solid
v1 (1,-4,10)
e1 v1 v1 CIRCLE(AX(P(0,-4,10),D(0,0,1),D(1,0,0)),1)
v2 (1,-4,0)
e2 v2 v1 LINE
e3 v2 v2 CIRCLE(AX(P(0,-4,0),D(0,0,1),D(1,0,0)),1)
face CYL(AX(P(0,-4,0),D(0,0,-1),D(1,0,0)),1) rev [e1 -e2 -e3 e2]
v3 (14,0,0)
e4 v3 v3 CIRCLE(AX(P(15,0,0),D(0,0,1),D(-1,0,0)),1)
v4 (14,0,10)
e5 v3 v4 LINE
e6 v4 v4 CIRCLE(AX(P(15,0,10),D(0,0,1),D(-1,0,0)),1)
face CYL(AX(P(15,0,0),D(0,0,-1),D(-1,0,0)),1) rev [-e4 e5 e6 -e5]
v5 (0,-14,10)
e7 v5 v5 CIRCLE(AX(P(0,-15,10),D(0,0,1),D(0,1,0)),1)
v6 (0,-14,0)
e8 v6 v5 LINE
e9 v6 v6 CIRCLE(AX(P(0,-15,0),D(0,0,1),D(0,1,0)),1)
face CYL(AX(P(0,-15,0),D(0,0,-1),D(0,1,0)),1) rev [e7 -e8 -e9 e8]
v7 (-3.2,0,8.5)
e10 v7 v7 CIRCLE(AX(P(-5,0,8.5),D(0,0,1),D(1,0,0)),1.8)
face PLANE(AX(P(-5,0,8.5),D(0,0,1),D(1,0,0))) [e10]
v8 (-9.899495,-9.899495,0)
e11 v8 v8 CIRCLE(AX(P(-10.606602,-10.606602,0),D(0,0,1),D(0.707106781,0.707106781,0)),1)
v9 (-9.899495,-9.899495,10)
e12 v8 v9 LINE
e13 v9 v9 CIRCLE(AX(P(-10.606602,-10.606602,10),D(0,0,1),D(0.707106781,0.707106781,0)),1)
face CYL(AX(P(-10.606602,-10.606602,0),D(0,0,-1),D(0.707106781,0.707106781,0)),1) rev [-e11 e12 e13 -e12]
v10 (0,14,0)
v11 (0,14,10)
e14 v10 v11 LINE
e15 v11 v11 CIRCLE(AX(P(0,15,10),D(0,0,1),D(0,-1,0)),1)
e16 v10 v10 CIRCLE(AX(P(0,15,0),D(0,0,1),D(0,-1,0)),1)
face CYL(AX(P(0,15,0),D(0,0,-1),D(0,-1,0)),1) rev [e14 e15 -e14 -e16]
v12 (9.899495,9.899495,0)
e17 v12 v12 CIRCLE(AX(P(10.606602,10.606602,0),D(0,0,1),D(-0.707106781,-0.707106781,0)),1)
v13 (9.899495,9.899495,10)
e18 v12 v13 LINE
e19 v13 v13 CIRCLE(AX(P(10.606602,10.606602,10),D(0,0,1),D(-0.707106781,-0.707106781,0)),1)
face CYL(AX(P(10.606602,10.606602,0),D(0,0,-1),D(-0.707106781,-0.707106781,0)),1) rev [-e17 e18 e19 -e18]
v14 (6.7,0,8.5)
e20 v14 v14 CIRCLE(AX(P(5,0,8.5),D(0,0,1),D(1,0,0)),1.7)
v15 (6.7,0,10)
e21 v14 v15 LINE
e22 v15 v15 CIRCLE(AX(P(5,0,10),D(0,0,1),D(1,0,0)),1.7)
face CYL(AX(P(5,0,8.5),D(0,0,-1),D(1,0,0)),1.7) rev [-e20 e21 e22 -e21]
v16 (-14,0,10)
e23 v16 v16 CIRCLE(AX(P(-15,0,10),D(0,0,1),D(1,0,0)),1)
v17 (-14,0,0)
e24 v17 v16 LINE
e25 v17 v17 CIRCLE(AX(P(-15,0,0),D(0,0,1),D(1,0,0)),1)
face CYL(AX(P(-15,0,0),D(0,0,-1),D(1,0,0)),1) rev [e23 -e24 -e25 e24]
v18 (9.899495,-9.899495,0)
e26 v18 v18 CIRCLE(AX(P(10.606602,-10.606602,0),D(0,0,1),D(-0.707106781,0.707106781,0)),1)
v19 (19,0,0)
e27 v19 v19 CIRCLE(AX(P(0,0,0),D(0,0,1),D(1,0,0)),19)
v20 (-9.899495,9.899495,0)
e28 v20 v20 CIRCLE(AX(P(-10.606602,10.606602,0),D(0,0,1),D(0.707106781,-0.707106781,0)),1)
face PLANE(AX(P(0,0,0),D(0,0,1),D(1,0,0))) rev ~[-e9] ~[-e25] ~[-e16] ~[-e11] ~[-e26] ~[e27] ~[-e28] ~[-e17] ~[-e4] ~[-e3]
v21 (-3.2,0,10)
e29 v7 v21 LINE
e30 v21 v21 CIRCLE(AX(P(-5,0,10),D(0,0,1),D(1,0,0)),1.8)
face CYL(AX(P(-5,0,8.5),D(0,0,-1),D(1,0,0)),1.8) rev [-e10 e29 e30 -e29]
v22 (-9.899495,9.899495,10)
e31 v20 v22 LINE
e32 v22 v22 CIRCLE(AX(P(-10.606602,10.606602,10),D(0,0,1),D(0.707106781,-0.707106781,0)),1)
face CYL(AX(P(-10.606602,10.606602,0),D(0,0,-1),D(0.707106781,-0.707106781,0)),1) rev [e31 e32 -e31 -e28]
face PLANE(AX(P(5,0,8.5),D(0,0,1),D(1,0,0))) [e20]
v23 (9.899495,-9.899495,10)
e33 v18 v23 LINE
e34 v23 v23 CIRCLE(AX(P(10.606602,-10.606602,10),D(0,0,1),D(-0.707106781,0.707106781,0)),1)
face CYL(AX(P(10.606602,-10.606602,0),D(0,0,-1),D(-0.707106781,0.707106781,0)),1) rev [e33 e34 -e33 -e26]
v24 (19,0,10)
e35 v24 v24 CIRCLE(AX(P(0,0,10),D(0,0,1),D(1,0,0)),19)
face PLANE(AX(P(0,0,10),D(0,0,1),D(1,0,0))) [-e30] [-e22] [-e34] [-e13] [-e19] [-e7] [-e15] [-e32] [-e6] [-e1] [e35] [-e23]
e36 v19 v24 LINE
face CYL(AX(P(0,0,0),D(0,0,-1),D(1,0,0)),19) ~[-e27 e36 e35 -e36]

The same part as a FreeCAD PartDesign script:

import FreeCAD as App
import Part
import Sketcher
Q = App.Units.Quantity

doc = App.newDocument("Part")
body = doc.addObject("PartDesign::Body", "Body")

# Sketch on XY plane
sketch1 = body.newObject("Sketcher::SketchObject", "Sketch")
sketch1.AttachmentSupport = (doc.getObject("XY_Plane"), [""])
sketch1.MapMode = "FlatFace"
sketch1.addGeometry(Part.Circle(App.Vector(-15, 0, 0), App.Vector(0, 0, 1), 1), False)
sketch1.addConstraint([
    Sketcher.Constraint("PointOnObject", 0, 3, -1),
    Sketcher.Constraint("Diameter", 0, Q("2 mm")),
    Sketcher.Constraint("DistanceX", 0, 3, -1, 1, Q("15 mm")),
])
pad1 = body.newObject("PartDesign::Pad", "Pad")
pad1.Profile = sketch1
pad1.Length = 10
body2 = doc.addObject("PartDesign::Body", "Body001")
body2.AllowCompound = True
doc.recompute()

body2.BaseFeature = body
doc.recompute()

body3 = doc.addObject("PartDesign::Body", "Body002")
body3.BaseFeature = body
body3.Placement = App.Placement(App.Vector(0, 0, 0), App.Rotation(App.Vector(0, 0, 1), 45))
boolean = body2.newObject("PartDesign::Boolean", "Boolean")
boolean.Type = "Fuse"
boolean.addObjects([body3])
doc.recompute()

body4 = doc.addObject("PartDesign::Body", "Body003")
body4.BaseFeature = body
body4.Placement = App.Placement(App.Vector(0, 0, 0), App.Rotation(App.Vector(0, 0, 1), 90))
boolean2 = body2.newObject("PartDesign::Boolean", "Boolean001")
boolean2.Type = "Fuse"
boolean2.addObjects([body4])
doc.recompute()

body5 = doc.addObject("PartDesign::Body", "Body004")
body5.BaseFeature = body
body5.Placement = App.Placement(App.Vector(0, 0, 0), App.Rotation(App.Vector(0, 0, 1), 135))
boolean3 = body2.newObject("PartDesign::Boolean", "Boolean002")
boolean3.Type = "Fuse"
boolean3.addObjects([body5])
doc.recompute()

body6 = doc.addObject("PartDesign::Body", "Body005")
body6.BaseFeature = body
body6.Placement = App.Placement(App.Vector(0, 0, 0), App.Rotation(App.Vector(0, 0, 1), 180))
boolean4 = body2.newObject("PartDesign::Boolean", "Boolean003")
boolean4.Type = "Fuse"
boolean4.addObjects([body6])
doc.recompute()

body7 = doc.addObject("PartDesign::Body", "Body006")
body7.BaseFeature = body
body7.Placement = App.Placement(App.Vector(0, 0, 0), App.Rotation(App.Vector(0, 0, 1), 225))
boolean5 = body2.newObject("PartDesign::Boolean", "Boolean004")
boolean5.Type = "Fuse"
boolean5.addObjects([body7])
doc.recompute()

body8 = doc.addObject("PartDesign::Body", "Body007")
body8.BaseFeature = body
body8.Placement = App.Placement(App.Vector(0, 0, 0), App.Rotation(App.Vector(0, 0, 1), 270))
boolean6 = body2.newObject("PartDesign::Boolean", "Boolean005")
boolean6.Type = "Fuse"
boolean6.addObjects([body8])
doc.recompute()

body.Placement = App.Placement(App.Vector(0, 0, 0), App.Rotation(App.Vector(0, 0, 1), 315))
boolean7 = body2.newObject("PartDesign::Boolean", "Boolean006")
boolean7.Type = "Fuse"
boolean7.addObjects([body])
body9 = doc.addObject("PartDesign::Body", "Body008")

# Sketch on XY plane
sketch2 = body9.newObject("Sketcher::SketchObject", "Sketch001")
sketch2.AttachmentSupport = (doc.getObject("XY_Plane008"), [""])
sketch2.MapMode = "FlatFace"
sketch2.AttachmentOffset = App.Placement(App.Vector(0, 0, 8.5), App.Rotation())
sketch2.addGeometry(Part.Circle(App.Vector(-5, 0, 0), App.Vector(0, 0, 1), 1.8), False)
sketch2.addConstraint([
    Sketcher.Constraint("PointOnObject", 0, 3, -1),
    Sketcher.Constraint("Diameter", 0, Q("3.6 mm")),
    Sketcher.Constraint("DistanceX", 0, 3, -1, 1, Q("5 mm")),
])
pad2 = body9.newObject("PartDesign::Pad", "Pad001")
pad2.Profile = sketch2
pad2.Length = 1.5
body10 = doc.addObject("PartDesign::Body", "Body009")

# Sketch on XY plane
sketch3 = body10.newObject("Sketcher::SketchObject", "Sketch002")
sketch3.AttachmentSupport = (doc.getObject("XY_Plane009"), [""])
sketch3.MapMode = "FlatFace"
sketch3.AttachmentOffset = App.Placement(App.Vector(0, 0, 8.5), App.Rotation())
sketch3.addGeometry(Part.Circle(App.Vector(5, 0, 0), App.Vector(0, 0, 1), 1.7), False)
sketch3.addConstraint([
    Sketcher.Constraint("PointOnObject", 0, 3, -1),
    Sketcher.Constraint("Diameter", 0, Q("3.4 mm")),
    Sketcher.Constraint("DistanceX", -1, 1, 0, 3, Q("5 mm")),
])
pad3 = body10.newObject("PartDesign::Pad", "Pad002")
pad3.Profile = sketch3
pad3.Length = 1.5
body11 = doc.addObject("PartDesign::Body", "Body010")
body11.AllowCompound = True

# Sketch on XY plane
sketch4 = body11.newObject("Sketcher::SketchObject", "Sketch003")
sketch4.AttachmentSupport = (doc.getObject("XY_Plane010"), [""])
sketch4.MapMode = "FlatFace"
sketch4.addGeometry(Part.Circle(App.Vector(0, -4, 0), App.Vector(0, 0, 1), 1), False)
sketch4.addConstraint([
    Sketcher.Constraint("PointOnObject", 0, 3, -2),
    Sketcher.Constraint("Diameter", 0, Q("2 mm")),
    Sketcher.Constraint("DistanceY", 0, 3, -1, 1, Q("4 mm")),
])
pad4 = body11.newObject("PartDesign::Pad", "Pad003")
pad4.Profile = sketch4
pad4.Length = 10
doc.recompute()

boolean8 = body11.newObject("PartDesign::Boolean", "Boolean007")
boolean8.Type = "Fuse"
boolean8.addObjects([body2])
doc.recompute()

boolean9 = body11.newObject("PartDesign::Boolean", "Boolean008")
boolean9.Type = "Fuse"
boolean9.addObjects([body9])
doc.recompute()

boolean10 = body11.newObject("PartDesign::Boolean", "Boolean009")
boolean10.Type = "Fuse"
boolean10.addObjects([body10])
body12 = doc.addObject("PartDesign::Body", "Body011")

# Sketch on XY plane
sketch5 = body12.newObject("Sketcher::SketchObject", "Sketch004")
sketch5.AttachmentSupport = (doc.getObject("XY_Plane011"), [""])
sketch5.MapMode = "FlatFace"
sketch5.addGeometry(Part.Circle(App.Vector(0, 0, 0), App.Vector(0, 0, 1), 19), False)
sketch5.addConstraint([
    Sketcher.Constraint("Coincident", 0, 3, -1, 1),
    Sketcher.Constraint("Diameter", 0, Q("38 mm")),
])
pad5 = body12.newObject("PartDesign::Pad", "Pad004")
pad5.Profile = sketch5
pad5.Length = 10
doc.recompute()

boolean11 = body12.newObject("PartDesign::Boolean", "Boolean010")
boolean11.Type = "Cut"
boolean11.addObjects([body11])

doc.recompute()
